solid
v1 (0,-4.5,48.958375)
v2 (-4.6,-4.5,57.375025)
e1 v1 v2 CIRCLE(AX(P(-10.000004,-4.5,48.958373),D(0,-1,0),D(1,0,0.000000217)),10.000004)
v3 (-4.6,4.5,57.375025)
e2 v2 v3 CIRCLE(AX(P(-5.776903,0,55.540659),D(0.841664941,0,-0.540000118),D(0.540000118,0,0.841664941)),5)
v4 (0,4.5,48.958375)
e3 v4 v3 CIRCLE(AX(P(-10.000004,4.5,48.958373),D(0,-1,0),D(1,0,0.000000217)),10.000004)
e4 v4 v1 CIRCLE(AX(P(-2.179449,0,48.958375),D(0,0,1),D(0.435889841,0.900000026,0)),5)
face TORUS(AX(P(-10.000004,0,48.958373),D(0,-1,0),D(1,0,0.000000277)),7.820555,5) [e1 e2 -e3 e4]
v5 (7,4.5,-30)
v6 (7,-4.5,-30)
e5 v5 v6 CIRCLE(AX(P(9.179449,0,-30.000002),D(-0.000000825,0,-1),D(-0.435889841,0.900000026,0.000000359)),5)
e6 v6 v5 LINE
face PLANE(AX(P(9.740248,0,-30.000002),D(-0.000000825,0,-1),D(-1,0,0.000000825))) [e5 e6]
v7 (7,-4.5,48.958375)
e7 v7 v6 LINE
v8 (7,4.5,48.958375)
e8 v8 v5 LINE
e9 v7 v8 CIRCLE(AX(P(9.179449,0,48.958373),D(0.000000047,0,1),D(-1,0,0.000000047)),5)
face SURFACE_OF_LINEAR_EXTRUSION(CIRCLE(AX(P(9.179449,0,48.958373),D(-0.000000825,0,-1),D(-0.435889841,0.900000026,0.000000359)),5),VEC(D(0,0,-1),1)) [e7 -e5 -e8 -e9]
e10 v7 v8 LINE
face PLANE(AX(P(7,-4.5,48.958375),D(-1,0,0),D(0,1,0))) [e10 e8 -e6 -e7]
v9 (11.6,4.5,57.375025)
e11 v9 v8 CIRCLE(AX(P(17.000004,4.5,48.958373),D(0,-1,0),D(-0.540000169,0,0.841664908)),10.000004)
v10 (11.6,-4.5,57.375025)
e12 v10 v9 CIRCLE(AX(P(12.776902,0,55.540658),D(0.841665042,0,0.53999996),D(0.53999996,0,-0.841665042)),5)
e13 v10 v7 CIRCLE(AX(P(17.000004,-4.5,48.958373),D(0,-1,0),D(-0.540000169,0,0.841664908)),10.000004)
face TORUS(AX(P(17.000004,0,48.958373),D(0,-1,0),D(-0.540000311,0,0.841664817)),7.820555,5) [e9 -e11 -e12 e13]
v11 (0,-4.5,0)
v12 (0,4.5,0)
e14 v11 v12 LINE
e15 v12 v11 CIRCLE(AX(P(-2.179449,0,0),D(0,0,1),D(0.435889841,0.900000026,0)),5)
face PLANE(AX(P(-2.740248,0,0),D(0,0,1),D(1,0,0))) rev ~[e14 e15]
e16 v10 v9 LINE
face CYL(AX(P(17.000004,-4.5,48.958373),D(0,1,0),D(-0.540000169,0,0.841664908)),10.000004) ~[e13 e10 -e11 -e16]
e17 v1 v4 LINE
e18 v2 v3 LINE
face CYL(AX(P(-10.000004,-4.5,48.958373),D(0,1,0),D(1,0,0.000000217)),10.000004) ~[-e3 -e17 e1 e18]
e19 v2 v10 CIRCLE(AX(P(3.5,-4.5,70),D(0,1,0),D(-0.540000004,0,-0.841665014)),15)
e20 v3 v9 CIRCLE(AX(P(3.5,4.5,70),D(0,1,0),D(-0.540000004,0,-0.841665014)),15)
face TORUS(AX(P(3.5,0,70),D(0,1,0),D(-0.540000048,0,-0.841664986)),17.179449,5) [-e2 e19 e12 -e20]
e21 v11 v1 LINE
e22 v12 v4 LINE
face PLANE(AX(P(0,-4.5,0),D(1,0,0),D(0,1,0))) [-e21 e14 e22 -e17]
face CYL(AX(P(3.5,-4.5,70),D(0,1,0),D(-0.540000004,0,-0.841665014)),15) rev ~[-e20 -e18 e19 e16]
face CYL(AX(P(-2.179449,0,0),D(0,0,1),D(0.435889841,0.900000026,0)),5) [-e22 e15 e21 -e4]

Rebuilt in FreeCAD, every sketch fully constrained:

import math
import FreeCAD as App
import Part
import Sketcher

V = App.Vector
Q = App.Units.Quantity

doc = App.newDocument("Part")
params = doc.addObject("Spreadsheet::Sheet", "Params")
for row, (alias, value) in enumerate([
    ("sketch1_radius", "5 mm"),
    ("sketch1_height", "9 mm"),
    ("sketch2_radius", "15 mm"),
], start=1):
    params.set(f"A{row}", alias)
    params.set(f"B{row}", "=" + value)
    params.setAlias(f"B{row}", alias)

body = doc.addObject("PartDesign::Body", "Body")

sketch1 = body.newObject("Sketcher::SketchObject", "Sketch")
sketch1.AttachmentSupport = (doc.getObject("XY_Plane"), [""])
sketch1.MapMode = "FlatFace"
sketch1.addGeometry([
    Part.LineSegment(V(0, -4.5, 0), V(0, 4.5, 0)),
    Part.ArcOfCircle(Part.Circle(V(-2.179449, 0, 0), V(0, 0, 1), 5), math.radians(64.158071), math.radians(295.841929)),
], False)
sketch1.addConstraint([
    Sketcher.Constraint("Coincident", 0, 1, 1, 2),
    Sketcher.Constraint("Coincident", 1, 1, 0, 2),
    Sketcher.Constraint("Vertical", 0),
    Sketcher.Constraint("Symmetric", 0, 1, 1, 1, -1, 1),
    Sketcher.Constraint("Radius", 1, Q("5 mm")),
    Sketcher.Constraint("DistanceY", 0, 1, 0, 2, Q("9 mm")),
])
sketch1.setExpression("Constraints[4]", "Params.sketch1_radius")
sketch1.setExpression("Constraints[5]", "Params.sketch1_height")

sketch2 = body.newObject("Sketcher::SketchObject", "Sketch001")
sketch2.AttachmentSupport = (doc.getObject("XZ_Plane"), [""])
sketch2.MapMode = "FlatFace"
sketch2.addGeometry([
    Part.LineSegment(V(0, 0, 0), V(0, 48.958375, 0)),
    Part.ArcOfCircle(Part.Circle(V(-10.000004, 48.958373, 0), V(0, 0, 1), 10.000004), math.radians(0.000012), math.radians(57.31635)),
    Part.ArcOfCircle(Part.Circle(V(3.5, 70, 0), V(0, 0, 1), 15), math.radians(-57.316361), math.radians(237.316361)),
    Part.ArcOfCircle(Part.Circle(V(17.000004, 48.958373, 0), V(0, 0, 1), 10.000004), math.radians(122.68365), math.radians(179.999988)),
    Part.LineSegment(V(7, 48.958375, 0), V(7, -30, 0)),
], False)
sketch2.addConstraint([
    Sketcher.Constraint("Tangent", 0, 2, 1, 1),
    Sketcher.Constraint("Tangent", 1, 2, 2, 2),
    Sketcher.Constraint("Tangent", 2, 1, 3, 1),
    Sketcher.Constraint("Tangent", 3, 2, 4, 1),
    Sketcher.Constraint("Vertical", 0),
    Sketcher.Constraint("Vertical", 4),
    Sketcher.Constraint("Coincident", 0, 1, -1, 1),
    Sketcher.Constraint("Equal", 1, 3),
    Sketcher.Constraint("Horizontal", 1, 3, 3, 3),
    Sketcher.Constraint("Radius", 2, Q("15 mm")),
    Sketcher.Constraint("DistanceY", -1, 1, 2, 3, Q("70 mm")),
    Sketcher.Constraint("DistanceX", -1, 1, 3, 2, Q("7 mm")),
    Sketcher.Constraint("DistanceY", 4, 2, -1, 1, Q("30 mm")),
    Sketcher.Constraint("DistanceX", 1, 2, -1, 1, Q("4.6 mm")),
])
sketch2.setExpression("Constraints[9]", "Params.sketch2_radius")
doc.recompute()

additivepipe = body.newObject("PartDesign::AdditivePipe", "AdditivePipe")
additivepipe.Profile = sketch1
additivepipe.Spine = (sketch2, ["Edge1", "Edge2", "Edge3", "Edge4", "Edge5"])

doc.recompute()
